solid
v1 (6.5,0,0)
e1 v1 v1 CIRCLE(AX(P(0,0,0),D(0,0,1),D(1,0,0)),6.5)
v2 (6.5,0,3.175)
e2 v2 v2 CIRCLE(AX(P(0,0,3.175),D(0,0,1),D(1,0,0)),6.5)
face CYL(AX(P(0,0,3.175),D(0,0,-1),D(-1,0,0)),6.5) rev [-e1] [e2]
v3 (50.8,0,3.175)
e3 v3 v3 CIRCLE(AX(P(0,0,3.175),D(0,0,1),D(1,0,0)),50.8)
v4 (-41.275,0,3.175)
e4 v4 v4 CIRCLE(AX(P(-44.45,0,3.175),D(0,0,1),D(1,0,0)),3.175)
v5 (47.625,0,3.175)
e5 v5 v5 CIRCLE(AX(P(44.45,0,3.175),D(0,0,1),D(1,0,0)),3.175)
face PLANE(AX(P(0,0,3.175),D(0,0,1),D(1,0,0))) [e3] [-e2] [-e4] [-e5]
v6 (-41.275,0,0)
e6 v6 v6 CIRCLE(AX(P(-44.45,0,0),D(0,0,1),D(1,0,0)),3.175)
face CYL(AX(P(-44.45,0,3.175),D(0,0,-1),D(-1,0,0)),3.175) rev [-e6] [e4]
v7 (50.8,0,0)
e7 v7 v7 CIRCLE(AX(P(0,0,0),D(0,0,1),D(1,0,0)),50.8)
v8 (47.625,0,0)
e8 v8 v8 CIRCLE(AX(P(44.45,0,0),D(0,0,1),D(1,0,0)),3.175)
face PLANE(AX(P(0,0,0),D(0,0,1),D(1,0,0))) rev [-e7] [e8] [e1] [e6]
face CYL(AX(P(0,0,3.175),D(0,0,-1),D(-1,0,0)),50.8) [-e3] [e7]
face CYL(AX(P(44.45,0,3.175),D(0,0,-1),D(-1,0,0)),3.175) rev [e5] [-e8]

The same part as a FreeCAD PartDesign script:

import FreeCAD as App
import Part
import Sketcher
Q = App.Units.Quantity

doc = App.newDocument("Part")
params = doc.addObject("Spreadsheet::Sheet", "Params")
for row, (alias, value) in enumerate([
    ("sketch1_diameter", "4 in"),
    ("sketch1_diameter2", "0.25 in"),
    ("pad1_length", "0.125 in"),
], start=1):
    params.set(f"A{row}", alias)
    params.set(f"B{row}", "=" + value)
    params.setAlias(f"B{row}", alias)

body = doc.addObject("PartDesign::Body", "Body")

# Sketch on XY plane
sketch1 = body.newObject("Sketcher::SketchObject", "Sketch")
sketch1.AttachmentSupport = (doc.getObject("XY_Plane"), [""])
sketch1.MapMode = "FlatFace"
sketch1.addGeometry(Part.Circle(App.Vector(0, 0, 0), App.Vector(0, 0, 1), 50.8), False)
sketch1.addGeometry(Part.Circle(App.Vector(-44.5, 0, 0), App.Vector(0, 0, 1), 3.2), False)
sketch1.addGeometry(Part.Circle(App.Vector(0, 0, 0), App.Vector(0, 0, 1), 6.5), False)
sketch1.addGeometry(Part.Circle(App.Vector(44.5, 0, 0), App.Vector(0, 0, 1), 3.2), False)
sketch1.addConstraint(Sketcher.Constraint("Coincident", 0, 3, -1, 1))
sketch1.addConstraint(Sketcher.Constraint("Coincident", 2, 3, -1, 1))
sketch1.addConstraint(Sketcher.Constraint("Equal", 1, 3))
sketch1.addConstraint(Sketcher.Constraint("Symmetric", 1, 3, 3, 3, -1, 1))
sketch1.addConstraint(Sketcher.Constraint("PointOnObject", 1, 3, -1))
sketch1.addConstraint(Sketcher.Constraint("Diameter", 0, Q("4 in")))
sketch1.addConstraint(Sketcher.Constraint("Diameter", 1, Q("0.25 in")))
sketch1.addConstraint(Sketcher.Constraint("DistanceX", 1, 3, 3, 3, Q("3.5 in")))
sketch1.addConstraint(Sketcher.Constraint("Diameter", 2, 13.0))
sketch1.setExpression("Constraints[5]", "Params.sketch1_diameter")
sketch1.setExpression("Constraints[6]", "Params.sketch1_diameter2")
pad1 = body.newObject("PartDesign::Pad", "Pad")
pad1.Profile = sketch1
pad1.setExpression("Length", "Params.pad1_length")

doc.recompute()
